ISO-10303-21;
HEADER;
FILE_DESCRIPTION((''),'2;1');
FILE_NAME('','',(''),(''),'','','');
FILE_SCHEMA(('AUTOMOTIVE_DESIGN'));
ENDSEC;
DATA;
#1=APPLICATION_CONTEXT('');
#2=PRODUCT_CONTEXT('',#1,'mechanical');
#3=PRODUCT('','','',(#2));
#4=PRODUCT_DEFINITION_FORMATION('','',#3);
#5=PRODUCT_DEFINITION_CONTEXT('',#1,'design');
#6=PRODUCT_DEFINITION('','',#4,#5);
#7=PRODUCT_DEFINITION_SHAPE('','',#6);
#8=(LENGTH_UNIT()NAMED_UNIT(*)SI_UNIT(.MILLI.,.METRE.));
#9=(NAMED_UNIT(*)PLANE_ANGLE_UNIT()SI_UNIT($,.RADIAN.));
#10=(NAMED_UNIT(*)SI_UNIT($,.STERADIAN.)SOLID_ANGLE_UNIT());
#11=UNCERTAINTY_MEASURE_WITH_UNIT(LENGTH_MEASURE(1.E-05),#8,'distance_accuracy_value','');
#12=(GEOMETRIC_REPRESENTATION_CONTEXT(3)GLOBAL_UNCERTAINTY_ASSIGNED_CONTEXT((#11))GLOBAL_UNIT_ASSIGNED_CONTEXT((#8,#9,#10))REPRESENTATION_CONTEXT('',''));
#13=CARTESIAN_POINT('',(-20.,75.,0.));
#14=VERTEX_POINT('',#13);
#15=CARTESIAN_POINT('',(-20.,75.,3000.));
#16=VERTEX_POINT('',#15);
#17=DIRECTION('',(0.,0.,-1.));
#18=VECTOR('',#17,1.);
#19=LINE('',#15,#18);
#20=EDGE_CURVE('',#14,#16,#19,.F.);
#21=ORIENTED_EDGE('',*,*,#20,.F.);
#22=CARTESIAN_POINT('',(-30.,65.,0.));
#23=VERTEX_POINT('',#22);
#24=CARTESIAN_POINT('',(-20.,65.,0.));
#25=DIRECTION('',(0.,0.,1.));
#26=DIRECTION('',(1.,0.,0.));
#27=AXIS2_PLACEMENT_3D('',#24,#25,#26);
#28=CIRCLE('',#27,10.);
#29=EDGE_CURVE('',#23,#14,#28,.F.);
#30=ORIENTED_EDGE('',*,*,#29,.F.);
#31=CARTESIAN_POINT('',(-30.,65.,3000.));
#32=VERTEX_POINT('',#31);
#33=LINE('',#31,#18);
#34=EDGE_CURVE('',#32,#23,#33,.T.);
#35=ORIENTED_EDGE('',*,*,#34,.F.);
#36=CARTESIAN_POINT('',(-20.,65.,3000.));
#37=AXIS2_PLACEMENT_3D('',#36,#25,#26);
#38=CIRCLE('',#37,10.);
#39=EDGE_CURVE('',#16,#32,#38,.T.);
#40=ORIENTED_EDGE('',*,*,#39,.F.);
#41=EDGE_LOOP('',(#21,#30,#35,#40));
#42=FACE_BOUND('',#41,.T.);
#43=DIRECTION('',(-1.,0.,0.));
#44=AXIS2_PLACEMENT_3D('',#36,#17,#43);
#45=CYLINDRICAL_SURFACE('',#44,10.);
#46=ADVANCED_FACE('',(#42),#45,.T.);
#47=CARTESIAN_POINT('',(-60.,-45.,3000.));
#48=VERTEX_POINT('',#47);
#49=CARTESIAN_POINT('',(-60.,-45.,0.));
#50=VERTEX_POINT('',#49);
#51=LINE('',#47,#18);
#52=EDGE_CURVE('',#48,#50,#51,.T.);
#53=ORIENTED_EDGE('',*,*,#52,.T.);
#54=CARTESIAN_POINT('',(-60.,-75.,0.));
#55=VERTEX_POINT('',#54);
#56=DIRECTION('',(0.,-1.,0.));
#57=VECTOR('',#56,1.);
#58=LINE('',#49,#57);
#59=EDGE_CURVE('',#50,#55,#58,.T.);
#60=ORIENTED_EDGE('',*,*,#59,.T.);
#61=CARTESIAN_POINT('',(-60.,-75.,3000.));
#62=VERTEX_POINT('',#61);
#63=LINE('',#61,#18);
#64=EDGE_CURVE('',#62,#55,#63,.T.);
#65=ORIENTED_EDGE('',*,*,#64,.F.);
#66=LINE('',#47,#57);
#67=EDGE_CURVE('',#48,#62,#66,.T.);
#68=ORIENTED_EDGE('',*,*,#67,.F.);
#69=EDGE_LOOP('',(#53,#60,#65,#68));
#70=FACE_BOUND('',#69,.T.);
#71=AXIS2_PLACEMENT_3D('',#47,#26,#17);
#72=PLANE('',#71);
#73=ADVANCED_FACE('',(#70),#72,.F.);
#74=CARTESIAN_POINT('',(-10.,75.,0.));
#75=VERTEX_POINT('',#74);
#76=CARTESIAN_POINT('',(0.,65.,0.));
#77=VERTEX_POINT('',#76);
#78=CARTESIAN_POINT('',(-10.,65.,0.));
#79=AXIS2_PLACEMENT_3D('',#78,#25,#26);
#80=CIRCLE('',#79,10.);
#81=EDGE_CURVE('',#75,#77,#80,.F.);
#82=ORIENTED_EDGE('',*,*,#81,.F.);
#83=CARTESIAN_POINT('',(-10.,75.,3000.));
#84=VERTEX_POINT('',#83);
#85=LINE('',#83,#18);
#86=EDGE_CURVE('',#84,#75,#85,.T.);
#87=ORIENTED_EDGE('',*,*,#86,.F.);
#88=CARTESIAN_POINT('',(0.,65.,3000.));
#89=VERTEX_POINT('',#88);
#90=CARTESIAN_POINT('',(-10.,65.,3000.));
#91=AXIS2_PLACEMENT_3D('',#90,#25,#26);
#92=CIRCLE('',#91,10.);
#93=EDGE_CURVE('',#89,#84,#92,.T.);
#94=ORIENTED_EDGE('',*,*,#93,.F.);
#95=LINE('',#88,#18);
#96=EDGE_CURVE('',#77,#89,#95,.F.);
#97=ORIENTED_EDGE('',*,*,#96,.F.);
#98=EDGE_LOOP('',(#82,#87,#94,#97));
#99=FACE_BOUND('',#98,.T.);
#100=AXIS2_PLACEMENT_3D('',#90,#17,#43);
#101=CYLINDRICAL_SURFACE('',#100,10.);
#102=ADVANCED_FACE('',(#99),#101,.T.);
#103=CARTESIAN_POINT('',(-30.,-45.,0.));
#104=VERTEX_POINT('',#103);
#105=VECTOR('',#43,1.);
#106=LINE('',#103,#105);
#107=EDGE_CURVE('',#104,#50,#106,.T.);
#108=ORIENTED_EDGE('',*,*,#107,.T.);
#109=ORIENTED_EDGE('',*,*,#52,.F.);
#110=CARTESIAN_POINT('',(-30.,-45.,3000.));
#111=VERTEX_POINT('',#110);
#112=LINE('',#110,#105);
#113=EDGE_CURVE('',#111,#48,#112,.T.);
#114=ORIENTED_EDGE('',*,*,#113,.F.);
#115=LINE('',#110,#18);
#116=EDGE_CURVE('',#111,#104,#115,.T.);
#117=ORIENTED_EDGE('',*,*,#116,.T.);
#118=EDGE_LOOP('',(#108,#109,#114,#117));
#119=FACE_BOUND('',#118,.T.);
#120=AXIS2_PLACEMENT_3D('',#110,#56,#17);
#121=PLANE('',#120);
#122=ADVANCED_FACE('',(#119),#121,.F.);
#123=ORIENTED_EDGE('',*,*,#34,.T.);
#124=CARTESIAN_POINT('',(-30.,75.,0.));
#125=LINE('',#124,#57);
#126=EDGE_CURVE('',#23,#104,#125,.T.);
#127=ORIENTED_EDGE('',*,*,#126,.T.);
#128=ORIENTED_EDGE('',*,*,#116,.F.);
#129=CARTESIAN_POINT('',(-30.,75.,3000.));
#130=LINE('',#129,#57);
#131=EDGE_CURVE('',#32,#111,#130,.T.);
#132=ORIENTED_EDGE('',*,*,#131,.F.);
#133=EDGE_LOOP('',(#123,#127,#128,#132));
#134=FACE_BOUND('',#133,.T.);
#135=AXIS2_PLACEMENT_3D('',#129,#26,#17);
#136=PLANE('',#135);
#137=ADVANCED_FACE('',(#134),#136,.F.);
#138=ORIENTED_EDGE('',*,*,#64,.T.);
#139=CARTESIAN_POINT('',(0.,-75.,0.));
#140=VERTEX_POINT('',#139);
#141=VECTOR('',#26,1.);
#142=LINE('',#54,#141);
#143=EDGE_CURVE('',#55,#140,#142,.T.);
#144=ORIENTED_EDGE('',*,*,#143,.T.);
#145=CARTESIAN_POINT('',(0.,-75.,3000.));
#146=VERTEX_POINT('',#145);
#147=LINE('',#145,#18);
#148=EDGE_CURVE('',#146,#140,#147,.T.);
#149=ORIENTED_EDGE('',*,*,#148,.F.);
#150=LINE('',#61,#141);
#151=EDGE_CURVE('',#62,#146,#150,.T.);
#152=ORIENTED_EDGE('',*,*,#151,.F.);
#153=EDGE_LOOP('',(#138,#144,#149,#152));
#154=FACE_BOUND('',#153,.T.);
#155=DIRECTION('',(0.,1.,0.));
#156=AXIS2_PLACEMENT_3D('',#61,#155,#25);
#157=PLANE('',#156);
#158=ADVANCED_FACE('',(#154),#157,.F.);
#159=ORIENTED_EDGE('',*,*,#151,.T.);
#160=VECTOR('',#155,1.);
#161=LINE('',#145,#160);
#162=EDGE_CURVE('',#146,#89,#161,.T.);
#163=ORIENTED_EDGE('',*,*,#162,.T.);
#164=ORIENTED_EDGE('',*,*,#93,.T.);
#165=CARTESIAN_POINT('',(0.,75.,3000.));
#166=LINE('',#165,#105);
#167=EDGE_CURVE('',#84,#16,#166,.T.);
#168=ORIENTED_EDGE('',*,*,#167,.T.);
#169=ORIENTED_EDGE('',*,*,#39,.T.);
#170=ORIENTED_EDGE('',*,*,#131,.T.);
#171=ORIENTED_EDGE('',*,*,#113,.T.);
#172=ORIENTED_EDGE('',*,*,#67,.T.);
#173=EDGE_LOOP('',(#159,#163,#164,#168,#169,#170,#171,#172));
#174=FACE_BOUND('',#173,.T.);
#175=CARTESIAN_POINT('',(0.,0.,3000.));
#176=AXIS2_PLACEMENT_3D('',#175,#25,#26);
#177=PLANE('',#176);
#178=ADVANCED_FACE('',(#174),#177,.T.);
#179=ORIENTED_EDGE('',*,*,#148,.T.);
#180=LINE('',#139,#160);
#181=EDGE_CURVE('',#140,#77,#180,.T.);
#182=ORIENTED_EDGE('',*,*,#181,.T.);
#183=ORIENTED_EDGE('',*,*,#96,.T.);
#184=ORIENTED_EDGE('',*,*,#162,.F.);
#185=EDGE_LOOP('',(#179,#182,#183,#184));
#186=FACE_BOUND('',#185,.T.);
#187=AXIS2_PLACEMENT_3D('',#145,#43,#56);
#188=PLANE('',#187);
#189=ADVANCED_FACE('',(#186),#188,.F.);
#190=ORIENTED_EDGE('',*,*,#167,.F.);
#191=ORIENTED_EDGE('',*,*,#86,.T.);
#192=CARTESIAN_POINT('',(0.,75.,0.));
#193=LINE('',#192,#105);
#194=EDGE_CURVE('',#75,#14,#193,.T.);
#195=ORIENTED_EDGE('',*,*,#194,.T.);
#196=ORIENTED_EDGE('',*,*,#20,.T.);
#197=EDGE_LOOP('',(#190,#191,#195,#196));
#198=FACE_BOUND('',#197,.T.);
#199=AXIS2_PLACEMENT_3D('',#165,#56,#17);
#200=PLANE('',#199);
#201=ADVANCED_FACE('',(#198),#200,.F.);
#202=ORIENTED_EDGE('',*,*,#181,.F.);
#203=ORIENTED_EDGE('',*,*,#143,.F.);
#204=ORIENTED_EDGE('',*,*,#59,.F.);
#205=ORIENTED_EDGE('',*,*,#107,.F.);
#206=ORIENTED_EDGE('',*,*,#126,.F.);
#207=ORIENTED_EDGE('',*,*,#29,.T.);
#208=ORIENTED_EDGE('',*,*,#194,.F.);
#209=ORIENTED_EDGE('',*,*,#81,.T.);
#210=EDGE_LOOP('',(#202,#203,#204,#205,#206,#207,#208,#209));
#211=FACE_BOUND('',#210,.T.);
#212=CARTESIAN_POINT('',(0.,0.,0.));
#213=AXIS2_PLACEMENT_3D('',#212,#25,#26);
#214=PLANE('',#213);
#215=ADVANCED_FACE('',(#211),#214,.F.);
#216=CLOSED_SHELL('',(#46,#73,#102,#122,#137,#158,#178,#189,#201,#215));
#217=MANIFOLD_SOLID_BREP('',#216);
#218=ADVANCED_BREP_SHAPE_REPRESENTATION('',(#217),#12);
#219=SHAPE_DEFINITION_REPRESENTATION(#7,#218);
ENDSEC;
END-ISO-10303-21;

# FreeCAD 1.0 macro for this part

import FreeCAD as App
import Part
import Sketcher

V = App.Vector
Q = App.Units.Quantity


def edges_at(feature, points):
    """Names of the edges that pass closest to the given points."""
    edges = feature.Shape.Edges
    near = lambda p: min(range(len(edges)), key=lambda i: edges[i].distToShape(Part.Vertex(*p))[0])
    return sorted({f"Edge{near(p) + 1}" for p in points})

doc = App.newDocument("Part")
body = doc.addObject("PartDesign::Body", "Body")

sketch1 = body.newObject("Sketcher::SketchObject", "Sketch")
sketch1.AttachmentSupport = (doc.getObject("XY_Plane"), [""])
sketch1.MapMode = "FlatFace"
sketch1.addGeometry([
    Part.LineSegment(V(0, -75, 0), V(0, 75, 0)),
    Part.LineSegment(V(0, 75, 0), V(-30, 75, 0)),
    Part.LineSegment(V(-30, 75, 0), V(-30, -45, 0)),
    Part.LineSegment(V(-30, -45, 0), V(-60, -45, 0)),
    Part.LineSegment(V(-60, -45, 0), V(-60, -75, 0)),
    Part.LineSegment(V(-60, -75, 0), V(0, -75, 0)),
], False)
sketch1.addConstraint([
    Sketcher.Constraint("Coincident", 0, 2, 1, 1),
    Sketcher.Constraint("Coincident", 1, 2, 2, 1),
    Sketcher.Constraint("Coincident", 2, 2, 3, 1),
    Sketcher.Constraint("Coincident", 3, 2, 4, 1),
    Sketcher.Constraint("Coincident", 4, 2, 5, 1),
    Sketcher.Constraint("Coincident", 5, 2, 0, 1),
    Sketcher.Constraint("Vertical", 0),
    Sketcher.Constraint("Horizontal", 1),
    Sketcher.Constraint("Vertical", 2),
    Sketcher.Constraint("Horizontal", 3),
    Sketcher.Constraint("Vertical", 4),
    Sketcher.Constraint("Horizontal", 5),
    Sketcher.Constraint("Symmetric", 0, 2, 5, 2, -1, 1),
    Sketcher.Constraint("Equal", 1, 3),
    Sketcher.Constraint("Equal", 3, 4),
    Sketcher.Constraint("DistanceX", 1, 2, 1, 1, Q("30 mm")),
    Sketcher.Constraint("DistanceY", 0, 1, 0, 2, Q("150 mm")),
])
pad1 = body.newObject("PartDesign::Pad", "Pad")
pad1.Profile = sketch1
pad1.Length = 3000
doc.recompute()

fillet = body.newObject("PartDesign::Fillet", "Fillet")
fillet.Base = (pad1, edges_at(pad1, [(-30, 75, 1500), (0, 75, 1500)]))
fillet.Radius = 10

doc.recompute()
